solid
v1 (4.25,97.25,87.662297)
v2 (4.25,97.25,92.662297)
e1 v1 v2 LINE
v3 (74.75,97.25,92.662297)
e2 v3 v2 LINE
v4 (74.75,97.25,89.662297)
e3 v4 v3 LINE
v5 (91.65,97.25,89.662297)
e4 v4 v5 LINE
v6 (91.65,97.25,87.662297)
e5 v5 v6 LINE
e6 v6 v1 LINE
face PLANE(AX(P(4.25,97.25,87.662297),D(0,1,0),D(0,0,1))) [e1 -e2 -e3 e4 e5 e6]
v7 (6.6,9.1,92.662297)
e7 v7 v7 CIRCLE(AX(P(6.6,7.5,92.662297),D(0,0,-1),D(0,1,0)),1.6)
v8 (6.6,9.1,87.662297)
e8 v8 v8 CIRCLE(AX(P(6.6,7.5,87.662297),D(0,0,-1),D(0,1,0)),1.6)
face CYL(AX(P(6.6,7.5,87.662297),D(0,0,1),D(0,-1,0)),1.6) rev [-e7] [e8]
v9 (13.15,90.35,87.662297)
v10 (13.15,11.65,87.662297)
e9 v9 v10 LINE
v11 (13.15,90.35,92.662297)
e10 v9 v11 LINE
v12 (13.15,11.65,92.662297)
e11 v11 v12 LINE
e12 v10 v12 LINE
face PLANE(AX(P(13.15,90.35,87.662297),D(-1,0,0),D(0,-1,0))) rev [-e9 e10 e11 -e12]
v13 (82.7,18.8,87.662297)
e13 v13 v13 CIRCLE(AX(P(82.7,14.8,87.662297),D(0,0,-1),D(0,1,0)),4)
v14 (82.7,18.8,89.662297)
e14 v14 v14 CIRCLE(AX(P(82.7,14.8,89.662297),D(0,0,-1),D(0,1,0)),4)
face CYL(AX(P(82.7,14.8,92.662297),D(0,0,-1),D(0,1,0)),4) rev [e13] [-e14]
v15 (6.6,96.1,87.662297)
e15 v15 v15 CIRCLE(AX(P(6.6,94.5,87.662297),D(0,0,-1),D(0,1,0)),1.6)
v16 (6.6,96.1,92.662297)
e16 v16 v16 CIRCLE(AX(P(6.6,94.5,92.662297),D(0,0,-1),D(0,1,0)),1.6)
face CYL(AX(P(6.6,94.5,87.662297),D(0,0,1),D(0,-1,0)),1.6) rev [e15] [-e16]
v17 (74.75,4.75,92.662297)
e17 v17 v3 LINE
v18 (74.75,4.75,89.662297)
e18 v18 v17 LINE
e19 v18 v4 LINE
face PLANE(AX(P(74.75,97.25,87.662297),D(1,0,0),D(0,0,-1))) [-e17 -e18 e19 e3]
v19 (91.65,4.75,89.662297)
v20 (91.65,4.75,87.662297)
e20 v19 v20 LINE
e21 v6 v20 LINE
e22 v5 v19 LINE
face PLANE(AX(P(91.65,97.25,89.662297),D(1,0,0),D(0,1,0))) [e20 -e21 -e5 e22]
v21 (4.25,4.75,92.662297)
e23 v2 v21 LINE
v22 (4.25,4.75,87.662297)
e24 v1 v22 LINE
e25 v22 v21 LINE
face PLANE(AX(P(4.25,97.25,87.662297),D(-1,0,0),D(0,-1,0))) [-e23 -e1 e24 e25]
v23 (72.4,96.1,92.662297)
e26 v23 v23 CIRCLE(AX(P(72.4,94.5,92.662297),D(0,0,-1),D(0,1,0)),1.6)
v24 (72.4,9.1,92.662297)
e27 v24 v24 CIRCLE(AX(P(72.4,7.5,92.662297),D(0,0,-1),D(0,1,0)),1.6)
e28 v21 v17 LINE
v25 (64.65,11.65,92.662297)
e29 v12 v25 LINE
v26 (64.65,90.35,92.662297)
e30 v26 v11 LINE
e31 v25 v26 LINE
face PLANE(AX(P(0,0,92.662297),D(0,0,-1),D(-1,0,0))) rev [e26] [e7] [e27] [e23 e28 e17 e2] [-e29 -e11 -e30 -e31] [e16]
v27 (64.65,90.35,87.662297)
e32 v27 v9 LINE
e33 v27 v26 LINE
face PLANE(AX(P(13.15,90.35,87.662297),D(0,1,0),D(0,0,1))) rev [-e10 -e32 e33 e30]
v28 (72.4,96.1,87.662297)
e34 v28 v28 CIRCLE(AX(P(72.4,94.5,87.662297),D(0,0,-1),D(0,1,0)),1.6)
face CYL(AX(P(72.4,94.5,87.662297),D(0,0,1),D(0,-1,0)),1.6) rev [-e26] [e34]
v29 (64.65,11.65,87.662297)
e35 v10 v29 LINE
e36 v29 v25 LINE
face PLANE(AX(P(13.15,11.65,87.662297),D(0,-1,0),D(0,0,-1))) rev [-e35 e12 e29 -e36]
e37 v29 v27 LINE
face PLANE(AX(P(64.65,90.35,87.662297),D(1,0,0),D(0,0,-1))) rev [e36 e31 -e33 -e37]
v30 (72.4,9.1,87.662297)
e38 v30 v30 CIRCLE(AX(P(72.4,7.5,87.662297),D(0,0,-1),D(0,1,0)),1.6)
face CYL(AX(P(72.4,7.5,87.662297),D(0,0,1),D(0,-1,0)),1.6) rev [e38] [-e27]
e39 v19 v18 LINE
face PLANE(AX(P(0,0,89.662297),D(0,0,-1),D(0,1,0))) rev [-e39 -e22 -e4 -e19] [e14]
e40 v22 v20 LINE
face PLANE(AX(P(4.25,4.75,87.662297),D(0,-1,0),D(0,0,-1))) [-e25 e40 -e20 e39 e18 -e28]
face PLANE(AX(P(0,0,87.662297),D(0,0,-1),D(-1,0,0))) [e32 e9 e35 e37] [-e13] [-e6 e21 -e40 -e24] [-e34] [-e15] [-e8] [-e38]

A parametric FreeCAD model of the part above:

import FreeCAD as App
import Part
import Sketcher
from FreeCAD import Vector
Q = App.Units.Quantity

doc = App.newDocument("Part")
params = doc.addObject("Spreadsheet::Sheet", "Params")
for row, (alias, value) in enumerate([
    ("sketch1_diameter", "3.2 mm"),
    ("sketch1_width", "71 mm"),
    ("sketch1_width2", "51 mm"),
    ("sketch1_height", "93 mm"),
    ("sketch1_height2", "78.2 mm"),
    ("pad1_length", "5 mm"),
    ("sketch2_width", "71 mm"),
    ("sketch2_height", "93 mm"),
    ("sketch2_width2", "70.5 mm"),
    ("sketch2_height2", "92.5 mm"),
    ("sketch3_width", "51 mm"),
    ("sketch3_width2", "51.5 mm"),
    ("sketch3_height", "78.7 mm"),
    ("sketch3_height2", "78.2 mm"),
    ("sketch4_diameter", "3.2 mm"),
    ("sketch4_width", "27 mm"),
    ("sketch4_height", "92.5 mm"),
    ("pad2_length", "2 mm"),
    ("sketch5_diameter", "8 mm"),
], start=1):
    params.set(f"A{row}", alias)
    params.set(f"B{row}", "=" + value)
    params.setAlias(f"B{row}", alias)

body = doc.addObject("PartDesign::Body", "Body")

# Sketch on XY plane
sketch1 = body.newObject("Sketcher::SketchObject", "Sketch")
sketch1.AttachmentSupport = (doc.getObject("XY_Plane"), [""])
sketch1.MapMode = "FlatFace"
sketch1.AttachmentOffset = App.Placement(Vector(0, 0, 92.662297), App.Rotation())
sketch1.addGeometry([
    Part.LineSegment(Vector(75, 97.5, 0), Vector(75, 4.5, 0)),  # 0
    Part.LineSegment(Vector(75, 4.5, 0), Vector(4, 4.5, 0)),  # 1
    Part.LineSegment(Vector(4, 4.5, 0), Vector(4, 97.5, 0)),  # 2
    Part.LineSegment(Vector(4, 97.5, 0), Vector(75, 97.5, 0)),  # 3
    Part.Circle(Vector(72.4, 7.5, 0), Vector(0, 0, 1), 1.6),  # 4
    Part.Circle(Vector(6.6, 7.5, 0), Vector(0, 0, 1), 1.6),  # 5
    Part.Circle(Vector(72.4, 94.5, 0), Vector(0, 0, 1), 1.6),  # 6
    Part.LineSegment(Vector(13.4, 11.9, 0), Vector(64.4, 11.9, 0)),  # 7
    Part.LineSegment(Vector(64.4, 11.9, 0), Vector(64.4, 90.1, 0)),  # 8
    Part.LineSegment(Vector(64.4, 90.1, 0), Vector(13.4, 90.1, 0)),  # 9
    Part.LineSegment(Vector(13.4, 90.1, 0), Vector(13.4, 11.9, 0)),  # 10
    Part.Circle(Vector(6.6, 94.5, 0), Vector(0, 0, 1), 1.6),  # 11
], False)
sketch1.addConstraint([
    Sketcher.Constraint("Coincident", 0, 2, 1, 1),
    Sketcher.Constraint("Coincident", 1, 2, 2, 1),
    Sketcher.Constraint("Coincident", 2, 2, 3, 1),
    Sketcher.Constraint("Coincident", 3, 2, 0, 1),
    Sketcher.Constraint("Coincident", 7, 2, 8, 1),
    Sketcher.Constraint("Coincident", 8, 2, 9, 1),
    Sketcher.Constraint("Coincident", 9, 2, 10, 1),
    Sketcher.Constraint("Coincident", 10, 2, 7, 1),
    Sketcher.Constraint("Vertical", 0),
    Sketcher.Constraint("Horizontal", 1),
    Sketcher.Constraint("Vertical", 2),
    Sketcher.Constraint("Horizontal", 3),
    Sketcher.Constraint("Horizontal", 7),
    Sketcher.Constraint("Vertical", 8),
    Sketcher.Constraint("Horizontal", 9),
    Sketcher.Constraint("Vertical", 10),
    Sketcher.Constraint("Equal", 4, 5),
    Sketcher.Constraint("Equal", 5, 6),
    Sketcher.Constraint("Equal", 6, 11),
    Sketcher.Constraint("Horizontal", 4, 3, 5, 3),
    Sketcher.Constraint("Horizontal", 6, 3, 11, 3),
    Sketcher.Constraint("Vertical", 4, 3, 6, 3),
    Sketcher.Constraint("Vertical", 5, 3, 11, 3),
    Sketcher.Constraint("Diameter", 4, Q("3.2 mm")),
    Sketcher.Constraint("DistanceX", 1, 2, 1, 1, Q("71 mm")),
    Sketcher.Constraint("DistanceX", 7, 1, 7, 2, Q("51 mm")),
    Sketcher.Constraint("DistanceY", 0, 2, 0, 1, Q("93 mm")),
    Sketcher.Constraint("DistanceY", 8, 1, 8, 2, Q("78.2 mm")),
    Sketcher.Constraint("DistanceX", -1, 1, 0, 2, Q("75 mm")),
    Sketcher.Constraint("DistanceY", 4, 3, 6, 3, Q("87 mm")),
    Sketcher.Constraint("DistanceY", 0, 2, 4, 3, Q("3 mm")),
    Sketcher.Constraint("DistanceX", 7, 2, 4, 3, Q("8 mm")),
    Sketcher.Constraint("DistanceX", -1, 1, 4, 3, Q("72.4 mm")),
    Sketcher.Constraint("DistanceY", -1, 1, 4, 3, Q("7.5 mm")),
    Sketcher.Constraint("DistanceX", -1, 1, 5, 3, Q("6.6 mm")),
    Sketcher.Constraint("DistanceY", -1, 1, 7, 2, Q("11.9 mm")),
])
sketch1.setExpression("Constraints[23]", "Params.sketch1_diameter")
sketch1.setExpression("Constraints[24]", "Params.sketch1_width")
sketch1.setExpression("Constraints[25]", "Params.sketch1_width2")
sketch1.setExpression("Constraints[26]", "Params.sketch1_height")
sketch1.setExpression("Constraints[27]", "Params.sketch1_height2")
pad1 = body.newObject("PartDesign::Pad", "Pad")
pad1.Profile = sketch1
pad1.setExpression("Length", "Params.pad1_length")
pad1.Reversed = True

# Sketch on XY plane
sketch2 = body.newObject("Sketcher::SketchObject", "Sketch001")
sketch2.AttachmentSupport = (doc.getObject("XY_Plane"), [""])
sketch2.MapMode = "FlatFace"
sketch2.AttachmentOffset = App.Placement(Vector(0, 0, 92.662297), App.Rotation())
sketch2.addGeometry([
    Part.LineSegment(Vector(4, 97.5, 0), Vector(4, 4.5, 0)),  # 0
    Part.LineSegment(Vector(4, 4.5, 0), Vector(75, 4.5, 0)),  # 1
    Part.LineSegment(Vector(75, 4.5, 0), Vector(75, 97.5, 0)),  # 2
    Part.LineSegment(Vector(75, 97.5, 0), Vector(4, 97.5, 0)),  # 3
    Part.LineSegment(Vector(74.75, 4.75, 0), Vector(4.25, 4.75, 0)),  # 4
    Part.LineSegment(Vector(4.25, 4.75, 0), Vector(4.25, 97.25, 0)),  # 5
    Part.LineSegment(Vector(4.25, 97.25, 0), Vector(74.75, 97.25, 0)),  # 6
    Part.LineSegment(Vector(74.75, 97.25, 0), Vector(74.75, 4.75, 0)),  # 7
], False)
sketch2.addConstraint([
    Sketcher.Constraint("Coincident", 0, 2, 1, 1),
    Sketcher.Constraint("Coincident", 1, 2, 2, 1),
    Sketcher.Constraint("Coincident", 2, 2, 3, 1),
    Sketcher.Constraint("Coincident", 3, 2, 0, 1),
    Sketcher.Constraint("Coincident", 4, 2, 5, 1),
    Sketcher.Constraint("Coincident", 5, 2, 6, 1),
    Sketcher.Constraint("Coincident", 6, 2, 7, 1),
    Sketcher.Constraint("Coincident", 7, 2, 4, 1),
    Sketcher.Constraint("Vertical", 0),
    Sketcher.Constraint("Horizontal", 1),
    Sketcher.Constraint("Vertical", 2),
    Sketcher.Constraint("Horizontal", 3),
    Sketcher.Constraint("Horizontal", 4),
    Sketcher.Constraint("Vertical", 5),
    Sketcher.Constraint("Horizontal", 6),
    Sketcher.Constraint("Vertical", 7),
    Sketcher.Constraint("DistanceX", 1, 1, 1, 2, Q("71 mm")),
    Sketcher.Constraint("DistanceY", 0, 2, 0, 1, Q("93 mm")),
    Sketcher.Constraint("DistanceX", 4, 2, 4, 1, Q("70.5 mm")),
    Sketcher.Constraint("DistanceY", 5, 1, 5, 2, Q("92.5 mm")),
    Sketcher.Constraint("DistanceX", -1, 1, 0, 2, Q("4 mm")),
    Sketcher.Constraint("DistanceY", -1, 1, 0, 2, Q("4.5 mm")),
    Sketcher.Constraint("DistanceX", -1, 1, 4, 2, Q("4.25 mm")),
    Sketcher.Constraint("DistanceY", -1, 1, 4, 2, Q("4.75 mm")),
])
sketch2.setExpression("Constraints[16]", "Params.sketch2_width")
sketch2.setExpression("Constraints[17]", "Params.sketch2_height")
sketch2.setExpression("Constraints[18]", "Params.sketch2_width2")
sketch2.setExpression("Constraints[19]", "Params.sketch2_height2")
pocket1 = body.newObject("PartDesign::Pocket", "Pocket")
pocket1.Profile = sketch2
pocket1.Type = "ThroughAll"

# Sketch on XY plane
sketch3 = body.newObject("Sketcher::SketchObject", "Sketch002")
sketch3.AttachmentSupport = (doc.getObject("XY_Plane"), [""])
sketch3.MapMode = "FlatFace"
sketch3.AttachmentOffset = App.Placement(Vector(0, 0, 92.662297), App.Rotation())
sketch3.addGeometry([
    Part.LineSegment(Vector(13.15, 90.35, 0), Vector(13.15, 11.65, 0)),  # 0
    Part.LineSegment(Vector(13.15, 11.65, 0), Vector(64.65, 11.65, 0)),  # 1
    Part.LineSegment(Vector(64.65, 11.65, 0), Vector(64.65, 90.35, 0)),  # 2
    Part.LineSegment(Vector(64.65, 90.35, 0), Vector(13.15, 90.35, 0)),  # 3
    Part.LineSegment(Vector(64.4, 11.9, 0), Vector(13.4, 11.9, 0)),  # 4
    Part.LineSegment(Vector(13.4, 11.9, 0), Vector(13.4, 90.1, 0)),  # 5
    Part.LineSegment(Vector(13.4, 90.1, 0), Vector(64.4, 90.1, 0)),  # 6
    Part.LineSegment(Vector(64.4, 90.1, 0), Vector(64.4, 11.9, 0)),  # 7
], False)
sketch3.addConstraint([
    Sketcher.Constraint("Coincident", 0, 2, 1, 1),
    Sketcher.Constraint("Coincident", 1, 2, 2, 1),
    Sketcher.Constraint("Coincident", 2, 2, 3, 1),
    Sketcher.Constraint("Coincident", 3, 2, 0, 1),
    Sketcher.Constraint("Coincident", 4, 2, 5, 1),
    Sketcher.Constraint("Coincident", 5, 2, 6, 1),
    Sketcher.Constraint("Coincident", 6, 2, 7, 1),
    Sketcher.Constraint("Coincident", 7, 2, 4, 1),
    Sketcher.Constraint("Vertical", 0),
    Sketcher.Constraint("Horizontal", 1),
    Sketcher.Constraint("Vertical", 2),
    Sketcher.Constraint("Horizontal", 3),
    Sketcher.Constraint("Horizontal", 4),
    Sketcher.Constraint("Vertical", 5),
    Sketcher.Constraint("Horizontal", 6),
    Sketcher.Constraint("Vertical", 7),
    Sketcher.Constraint("DistanceX", 4, 2, 4, 1, Q("51 mm")),
    Sketcher.Constraint("DistanceX", 1, 1, 1, 2, Q("51.5 mm")),
    Sketcher.Constraint("DistanceY", 0, 2, 0, 1, Q("78.7 mm")),
    Sketcher.Constraint("DistanceY", 5, 1, 5, 2, Q("78.2 mm")),
    Sketcher.Constraint("DistanceX", -1, 1, 4, 2, Q("13.4 mm")),
    Sketcher.Constraint("DistanceY", -1, 1, 4, 2, Q("11.9 mm")),
    Sketcher.Constraint("DistanceX", -1, 1, 0, 2, Q("13.15 mm")),
    Sketcher.Constraint("DistanceY", -1, 1, 0, 2, Q("11.65 mm")),
])
sketch3.setExpression("Constraints[16]", "Params.sketch3_width")
sketch3.setExpression("Constraints[17]", "Params.sketch3_width2")
sketch3.setExpression("Constraints[18]", "Params.sketch3_height")
sketch3.setExpression("Constraints[19]", "Params.sketch3_height2")
pocket2 = body.newObject("PartDesign::Pocket", "Pocket001")
pocket2.Profile = sketch3
pocket2.Type = "ThroughAll"

# Sketch on XY plane
sketch4 = body.newObject("Sketcher::SketchObject", "Sketch003")
sketch4.AttachmentSupport = (doc.getObject("XY_Plane"), [""])
sketch4.MapMode = "FlatFace"
sketch4.AttachmentOffset = App.Placement(Vector(0, 0, 87.662297), App.Rotation())
sketch4.addGeometry([
    Part.LineSegment(Vector(91.65, 97.25, 0), Vector(91.65, 4.75, 0)),  # 0
    Part.LineSegment(Vector(91.65, 4.75, 0), Vector(64.65, 4.75, 0)),  # 1
    Part.LineSegment(Vector(64.65, 4.75, 0), Vector(64.65, 97.25, 0)),  # 2
    Part.LineSegment(Vector(64.65, 97.25, 0), Vector(91.65, 97.25, 0)),  # 3
    Part.Circle(Vector(72.4, 7.5, 0), Vector(0, 0, 1), 1.6),  # 4
    Part.Circle(Vector(72.4, 94.5, 0), Vector(0, 0, 1), 1.6),  # 5
], False)
sketch4.addConstraint([
    Sketcher.Constraint("Coincident", 0, 2, 1, 1),
    Sketcher.Constraint("Coincident", 1, 2, 2, 1),
    Sketcher.Constraint("Coincident", 2, 2, 3, 1),
    Sketcher.Constraint("Coincident", 3, 2, 0, 1),
    Sketcher.Constraint("Vertical", 0),
    Sketcher.Constraint("Horizontal", 1),
    Sketcher.Constraint("Vertical", 2),
    Sketcher.Constraint("Horizontal", 3),
    Sketcher.Constraint("Equal", 4, 5),
    Sketcher.Constraint("Vertical", 4, 3, 5, 3),
    Sketcher.Constraint("Diameter", 4, Q("3.2 mm")),
    Sketcher.Constraint("DistanceX", 1, 2, 1, 1, Q("27 mm")),
    Sketcher.Constraint("DistanceY", 0, 2, 0, 1, Q("92.5 mm")),
    Sketcher.Constraint("DistanceY", 4, 3, 5, 3, Q("87 mm")),
    Sketcher.Constraint("DistanceX", -1, 1, 4, 3, Q("72.4 mm")),
    Sketcher.Constraint("DistanceY", -1, 1, 4, 3, Q("7.5 mm")),
    Sketcher.Constraint("DistanceX", -1, 1, 0, 2, Q("91.65 mm")),
    Sketcher.Constraint("DistanceY", -1, 1, 0, 2, Q("4.75 mm")),
])
sketch4.setExpression("Constraints[10]", "Params.sketch4_diameter")
sketch4.setExpression("Constraints[11]", "Params.sketch4_width")
sketch4.setExpression("Constraints[12]", "Params.sketch4_height")
pad2 = body.newObject("PartDesign::Pad", "Pad001")
pad2.Profile = sketch4
pad2.setExpression("Length", "Params.pad2_length")

# Sketch on XY plane
sketch5 = body.newObject("Sketcher::SketchObject", "Sketch004")
sketch5.AttachmentSupport = (doc.getObject("XY_Plane"), [""])
sketch5.MapMode = "FlatFace"
sketch5.AttachmentOffset = App.Placement(Vector(0, 0, 87.662297), App.Rotation())
sketch5.addGeometry(Part.Circle(Vector(82.7, 14.8, 0), Vector(0, 0, 1), 4), False)
sketch5.addConstraint([
    Sketcher.Constraint("Diameter", 0, Q("8 mm")),
    Sketcher.Constraint("DistanceX", -1, 1, 0, 3, Q("82.7 mm")),
    Sketcher.Constraint("DistanceY", -1, 1, 0, 3, Q("14.8 mm")),
])
sketch5.setExpression("Constraints[0]", "Params.sketch5_diameter")
pocket3 = body.newObject("PartDesign::Pocket", "Pocket002")
pocket3.Profile = sketch5
pocket3.Type = "ThroughAll"
pocket3.Reversed = True

doc.recompute()
